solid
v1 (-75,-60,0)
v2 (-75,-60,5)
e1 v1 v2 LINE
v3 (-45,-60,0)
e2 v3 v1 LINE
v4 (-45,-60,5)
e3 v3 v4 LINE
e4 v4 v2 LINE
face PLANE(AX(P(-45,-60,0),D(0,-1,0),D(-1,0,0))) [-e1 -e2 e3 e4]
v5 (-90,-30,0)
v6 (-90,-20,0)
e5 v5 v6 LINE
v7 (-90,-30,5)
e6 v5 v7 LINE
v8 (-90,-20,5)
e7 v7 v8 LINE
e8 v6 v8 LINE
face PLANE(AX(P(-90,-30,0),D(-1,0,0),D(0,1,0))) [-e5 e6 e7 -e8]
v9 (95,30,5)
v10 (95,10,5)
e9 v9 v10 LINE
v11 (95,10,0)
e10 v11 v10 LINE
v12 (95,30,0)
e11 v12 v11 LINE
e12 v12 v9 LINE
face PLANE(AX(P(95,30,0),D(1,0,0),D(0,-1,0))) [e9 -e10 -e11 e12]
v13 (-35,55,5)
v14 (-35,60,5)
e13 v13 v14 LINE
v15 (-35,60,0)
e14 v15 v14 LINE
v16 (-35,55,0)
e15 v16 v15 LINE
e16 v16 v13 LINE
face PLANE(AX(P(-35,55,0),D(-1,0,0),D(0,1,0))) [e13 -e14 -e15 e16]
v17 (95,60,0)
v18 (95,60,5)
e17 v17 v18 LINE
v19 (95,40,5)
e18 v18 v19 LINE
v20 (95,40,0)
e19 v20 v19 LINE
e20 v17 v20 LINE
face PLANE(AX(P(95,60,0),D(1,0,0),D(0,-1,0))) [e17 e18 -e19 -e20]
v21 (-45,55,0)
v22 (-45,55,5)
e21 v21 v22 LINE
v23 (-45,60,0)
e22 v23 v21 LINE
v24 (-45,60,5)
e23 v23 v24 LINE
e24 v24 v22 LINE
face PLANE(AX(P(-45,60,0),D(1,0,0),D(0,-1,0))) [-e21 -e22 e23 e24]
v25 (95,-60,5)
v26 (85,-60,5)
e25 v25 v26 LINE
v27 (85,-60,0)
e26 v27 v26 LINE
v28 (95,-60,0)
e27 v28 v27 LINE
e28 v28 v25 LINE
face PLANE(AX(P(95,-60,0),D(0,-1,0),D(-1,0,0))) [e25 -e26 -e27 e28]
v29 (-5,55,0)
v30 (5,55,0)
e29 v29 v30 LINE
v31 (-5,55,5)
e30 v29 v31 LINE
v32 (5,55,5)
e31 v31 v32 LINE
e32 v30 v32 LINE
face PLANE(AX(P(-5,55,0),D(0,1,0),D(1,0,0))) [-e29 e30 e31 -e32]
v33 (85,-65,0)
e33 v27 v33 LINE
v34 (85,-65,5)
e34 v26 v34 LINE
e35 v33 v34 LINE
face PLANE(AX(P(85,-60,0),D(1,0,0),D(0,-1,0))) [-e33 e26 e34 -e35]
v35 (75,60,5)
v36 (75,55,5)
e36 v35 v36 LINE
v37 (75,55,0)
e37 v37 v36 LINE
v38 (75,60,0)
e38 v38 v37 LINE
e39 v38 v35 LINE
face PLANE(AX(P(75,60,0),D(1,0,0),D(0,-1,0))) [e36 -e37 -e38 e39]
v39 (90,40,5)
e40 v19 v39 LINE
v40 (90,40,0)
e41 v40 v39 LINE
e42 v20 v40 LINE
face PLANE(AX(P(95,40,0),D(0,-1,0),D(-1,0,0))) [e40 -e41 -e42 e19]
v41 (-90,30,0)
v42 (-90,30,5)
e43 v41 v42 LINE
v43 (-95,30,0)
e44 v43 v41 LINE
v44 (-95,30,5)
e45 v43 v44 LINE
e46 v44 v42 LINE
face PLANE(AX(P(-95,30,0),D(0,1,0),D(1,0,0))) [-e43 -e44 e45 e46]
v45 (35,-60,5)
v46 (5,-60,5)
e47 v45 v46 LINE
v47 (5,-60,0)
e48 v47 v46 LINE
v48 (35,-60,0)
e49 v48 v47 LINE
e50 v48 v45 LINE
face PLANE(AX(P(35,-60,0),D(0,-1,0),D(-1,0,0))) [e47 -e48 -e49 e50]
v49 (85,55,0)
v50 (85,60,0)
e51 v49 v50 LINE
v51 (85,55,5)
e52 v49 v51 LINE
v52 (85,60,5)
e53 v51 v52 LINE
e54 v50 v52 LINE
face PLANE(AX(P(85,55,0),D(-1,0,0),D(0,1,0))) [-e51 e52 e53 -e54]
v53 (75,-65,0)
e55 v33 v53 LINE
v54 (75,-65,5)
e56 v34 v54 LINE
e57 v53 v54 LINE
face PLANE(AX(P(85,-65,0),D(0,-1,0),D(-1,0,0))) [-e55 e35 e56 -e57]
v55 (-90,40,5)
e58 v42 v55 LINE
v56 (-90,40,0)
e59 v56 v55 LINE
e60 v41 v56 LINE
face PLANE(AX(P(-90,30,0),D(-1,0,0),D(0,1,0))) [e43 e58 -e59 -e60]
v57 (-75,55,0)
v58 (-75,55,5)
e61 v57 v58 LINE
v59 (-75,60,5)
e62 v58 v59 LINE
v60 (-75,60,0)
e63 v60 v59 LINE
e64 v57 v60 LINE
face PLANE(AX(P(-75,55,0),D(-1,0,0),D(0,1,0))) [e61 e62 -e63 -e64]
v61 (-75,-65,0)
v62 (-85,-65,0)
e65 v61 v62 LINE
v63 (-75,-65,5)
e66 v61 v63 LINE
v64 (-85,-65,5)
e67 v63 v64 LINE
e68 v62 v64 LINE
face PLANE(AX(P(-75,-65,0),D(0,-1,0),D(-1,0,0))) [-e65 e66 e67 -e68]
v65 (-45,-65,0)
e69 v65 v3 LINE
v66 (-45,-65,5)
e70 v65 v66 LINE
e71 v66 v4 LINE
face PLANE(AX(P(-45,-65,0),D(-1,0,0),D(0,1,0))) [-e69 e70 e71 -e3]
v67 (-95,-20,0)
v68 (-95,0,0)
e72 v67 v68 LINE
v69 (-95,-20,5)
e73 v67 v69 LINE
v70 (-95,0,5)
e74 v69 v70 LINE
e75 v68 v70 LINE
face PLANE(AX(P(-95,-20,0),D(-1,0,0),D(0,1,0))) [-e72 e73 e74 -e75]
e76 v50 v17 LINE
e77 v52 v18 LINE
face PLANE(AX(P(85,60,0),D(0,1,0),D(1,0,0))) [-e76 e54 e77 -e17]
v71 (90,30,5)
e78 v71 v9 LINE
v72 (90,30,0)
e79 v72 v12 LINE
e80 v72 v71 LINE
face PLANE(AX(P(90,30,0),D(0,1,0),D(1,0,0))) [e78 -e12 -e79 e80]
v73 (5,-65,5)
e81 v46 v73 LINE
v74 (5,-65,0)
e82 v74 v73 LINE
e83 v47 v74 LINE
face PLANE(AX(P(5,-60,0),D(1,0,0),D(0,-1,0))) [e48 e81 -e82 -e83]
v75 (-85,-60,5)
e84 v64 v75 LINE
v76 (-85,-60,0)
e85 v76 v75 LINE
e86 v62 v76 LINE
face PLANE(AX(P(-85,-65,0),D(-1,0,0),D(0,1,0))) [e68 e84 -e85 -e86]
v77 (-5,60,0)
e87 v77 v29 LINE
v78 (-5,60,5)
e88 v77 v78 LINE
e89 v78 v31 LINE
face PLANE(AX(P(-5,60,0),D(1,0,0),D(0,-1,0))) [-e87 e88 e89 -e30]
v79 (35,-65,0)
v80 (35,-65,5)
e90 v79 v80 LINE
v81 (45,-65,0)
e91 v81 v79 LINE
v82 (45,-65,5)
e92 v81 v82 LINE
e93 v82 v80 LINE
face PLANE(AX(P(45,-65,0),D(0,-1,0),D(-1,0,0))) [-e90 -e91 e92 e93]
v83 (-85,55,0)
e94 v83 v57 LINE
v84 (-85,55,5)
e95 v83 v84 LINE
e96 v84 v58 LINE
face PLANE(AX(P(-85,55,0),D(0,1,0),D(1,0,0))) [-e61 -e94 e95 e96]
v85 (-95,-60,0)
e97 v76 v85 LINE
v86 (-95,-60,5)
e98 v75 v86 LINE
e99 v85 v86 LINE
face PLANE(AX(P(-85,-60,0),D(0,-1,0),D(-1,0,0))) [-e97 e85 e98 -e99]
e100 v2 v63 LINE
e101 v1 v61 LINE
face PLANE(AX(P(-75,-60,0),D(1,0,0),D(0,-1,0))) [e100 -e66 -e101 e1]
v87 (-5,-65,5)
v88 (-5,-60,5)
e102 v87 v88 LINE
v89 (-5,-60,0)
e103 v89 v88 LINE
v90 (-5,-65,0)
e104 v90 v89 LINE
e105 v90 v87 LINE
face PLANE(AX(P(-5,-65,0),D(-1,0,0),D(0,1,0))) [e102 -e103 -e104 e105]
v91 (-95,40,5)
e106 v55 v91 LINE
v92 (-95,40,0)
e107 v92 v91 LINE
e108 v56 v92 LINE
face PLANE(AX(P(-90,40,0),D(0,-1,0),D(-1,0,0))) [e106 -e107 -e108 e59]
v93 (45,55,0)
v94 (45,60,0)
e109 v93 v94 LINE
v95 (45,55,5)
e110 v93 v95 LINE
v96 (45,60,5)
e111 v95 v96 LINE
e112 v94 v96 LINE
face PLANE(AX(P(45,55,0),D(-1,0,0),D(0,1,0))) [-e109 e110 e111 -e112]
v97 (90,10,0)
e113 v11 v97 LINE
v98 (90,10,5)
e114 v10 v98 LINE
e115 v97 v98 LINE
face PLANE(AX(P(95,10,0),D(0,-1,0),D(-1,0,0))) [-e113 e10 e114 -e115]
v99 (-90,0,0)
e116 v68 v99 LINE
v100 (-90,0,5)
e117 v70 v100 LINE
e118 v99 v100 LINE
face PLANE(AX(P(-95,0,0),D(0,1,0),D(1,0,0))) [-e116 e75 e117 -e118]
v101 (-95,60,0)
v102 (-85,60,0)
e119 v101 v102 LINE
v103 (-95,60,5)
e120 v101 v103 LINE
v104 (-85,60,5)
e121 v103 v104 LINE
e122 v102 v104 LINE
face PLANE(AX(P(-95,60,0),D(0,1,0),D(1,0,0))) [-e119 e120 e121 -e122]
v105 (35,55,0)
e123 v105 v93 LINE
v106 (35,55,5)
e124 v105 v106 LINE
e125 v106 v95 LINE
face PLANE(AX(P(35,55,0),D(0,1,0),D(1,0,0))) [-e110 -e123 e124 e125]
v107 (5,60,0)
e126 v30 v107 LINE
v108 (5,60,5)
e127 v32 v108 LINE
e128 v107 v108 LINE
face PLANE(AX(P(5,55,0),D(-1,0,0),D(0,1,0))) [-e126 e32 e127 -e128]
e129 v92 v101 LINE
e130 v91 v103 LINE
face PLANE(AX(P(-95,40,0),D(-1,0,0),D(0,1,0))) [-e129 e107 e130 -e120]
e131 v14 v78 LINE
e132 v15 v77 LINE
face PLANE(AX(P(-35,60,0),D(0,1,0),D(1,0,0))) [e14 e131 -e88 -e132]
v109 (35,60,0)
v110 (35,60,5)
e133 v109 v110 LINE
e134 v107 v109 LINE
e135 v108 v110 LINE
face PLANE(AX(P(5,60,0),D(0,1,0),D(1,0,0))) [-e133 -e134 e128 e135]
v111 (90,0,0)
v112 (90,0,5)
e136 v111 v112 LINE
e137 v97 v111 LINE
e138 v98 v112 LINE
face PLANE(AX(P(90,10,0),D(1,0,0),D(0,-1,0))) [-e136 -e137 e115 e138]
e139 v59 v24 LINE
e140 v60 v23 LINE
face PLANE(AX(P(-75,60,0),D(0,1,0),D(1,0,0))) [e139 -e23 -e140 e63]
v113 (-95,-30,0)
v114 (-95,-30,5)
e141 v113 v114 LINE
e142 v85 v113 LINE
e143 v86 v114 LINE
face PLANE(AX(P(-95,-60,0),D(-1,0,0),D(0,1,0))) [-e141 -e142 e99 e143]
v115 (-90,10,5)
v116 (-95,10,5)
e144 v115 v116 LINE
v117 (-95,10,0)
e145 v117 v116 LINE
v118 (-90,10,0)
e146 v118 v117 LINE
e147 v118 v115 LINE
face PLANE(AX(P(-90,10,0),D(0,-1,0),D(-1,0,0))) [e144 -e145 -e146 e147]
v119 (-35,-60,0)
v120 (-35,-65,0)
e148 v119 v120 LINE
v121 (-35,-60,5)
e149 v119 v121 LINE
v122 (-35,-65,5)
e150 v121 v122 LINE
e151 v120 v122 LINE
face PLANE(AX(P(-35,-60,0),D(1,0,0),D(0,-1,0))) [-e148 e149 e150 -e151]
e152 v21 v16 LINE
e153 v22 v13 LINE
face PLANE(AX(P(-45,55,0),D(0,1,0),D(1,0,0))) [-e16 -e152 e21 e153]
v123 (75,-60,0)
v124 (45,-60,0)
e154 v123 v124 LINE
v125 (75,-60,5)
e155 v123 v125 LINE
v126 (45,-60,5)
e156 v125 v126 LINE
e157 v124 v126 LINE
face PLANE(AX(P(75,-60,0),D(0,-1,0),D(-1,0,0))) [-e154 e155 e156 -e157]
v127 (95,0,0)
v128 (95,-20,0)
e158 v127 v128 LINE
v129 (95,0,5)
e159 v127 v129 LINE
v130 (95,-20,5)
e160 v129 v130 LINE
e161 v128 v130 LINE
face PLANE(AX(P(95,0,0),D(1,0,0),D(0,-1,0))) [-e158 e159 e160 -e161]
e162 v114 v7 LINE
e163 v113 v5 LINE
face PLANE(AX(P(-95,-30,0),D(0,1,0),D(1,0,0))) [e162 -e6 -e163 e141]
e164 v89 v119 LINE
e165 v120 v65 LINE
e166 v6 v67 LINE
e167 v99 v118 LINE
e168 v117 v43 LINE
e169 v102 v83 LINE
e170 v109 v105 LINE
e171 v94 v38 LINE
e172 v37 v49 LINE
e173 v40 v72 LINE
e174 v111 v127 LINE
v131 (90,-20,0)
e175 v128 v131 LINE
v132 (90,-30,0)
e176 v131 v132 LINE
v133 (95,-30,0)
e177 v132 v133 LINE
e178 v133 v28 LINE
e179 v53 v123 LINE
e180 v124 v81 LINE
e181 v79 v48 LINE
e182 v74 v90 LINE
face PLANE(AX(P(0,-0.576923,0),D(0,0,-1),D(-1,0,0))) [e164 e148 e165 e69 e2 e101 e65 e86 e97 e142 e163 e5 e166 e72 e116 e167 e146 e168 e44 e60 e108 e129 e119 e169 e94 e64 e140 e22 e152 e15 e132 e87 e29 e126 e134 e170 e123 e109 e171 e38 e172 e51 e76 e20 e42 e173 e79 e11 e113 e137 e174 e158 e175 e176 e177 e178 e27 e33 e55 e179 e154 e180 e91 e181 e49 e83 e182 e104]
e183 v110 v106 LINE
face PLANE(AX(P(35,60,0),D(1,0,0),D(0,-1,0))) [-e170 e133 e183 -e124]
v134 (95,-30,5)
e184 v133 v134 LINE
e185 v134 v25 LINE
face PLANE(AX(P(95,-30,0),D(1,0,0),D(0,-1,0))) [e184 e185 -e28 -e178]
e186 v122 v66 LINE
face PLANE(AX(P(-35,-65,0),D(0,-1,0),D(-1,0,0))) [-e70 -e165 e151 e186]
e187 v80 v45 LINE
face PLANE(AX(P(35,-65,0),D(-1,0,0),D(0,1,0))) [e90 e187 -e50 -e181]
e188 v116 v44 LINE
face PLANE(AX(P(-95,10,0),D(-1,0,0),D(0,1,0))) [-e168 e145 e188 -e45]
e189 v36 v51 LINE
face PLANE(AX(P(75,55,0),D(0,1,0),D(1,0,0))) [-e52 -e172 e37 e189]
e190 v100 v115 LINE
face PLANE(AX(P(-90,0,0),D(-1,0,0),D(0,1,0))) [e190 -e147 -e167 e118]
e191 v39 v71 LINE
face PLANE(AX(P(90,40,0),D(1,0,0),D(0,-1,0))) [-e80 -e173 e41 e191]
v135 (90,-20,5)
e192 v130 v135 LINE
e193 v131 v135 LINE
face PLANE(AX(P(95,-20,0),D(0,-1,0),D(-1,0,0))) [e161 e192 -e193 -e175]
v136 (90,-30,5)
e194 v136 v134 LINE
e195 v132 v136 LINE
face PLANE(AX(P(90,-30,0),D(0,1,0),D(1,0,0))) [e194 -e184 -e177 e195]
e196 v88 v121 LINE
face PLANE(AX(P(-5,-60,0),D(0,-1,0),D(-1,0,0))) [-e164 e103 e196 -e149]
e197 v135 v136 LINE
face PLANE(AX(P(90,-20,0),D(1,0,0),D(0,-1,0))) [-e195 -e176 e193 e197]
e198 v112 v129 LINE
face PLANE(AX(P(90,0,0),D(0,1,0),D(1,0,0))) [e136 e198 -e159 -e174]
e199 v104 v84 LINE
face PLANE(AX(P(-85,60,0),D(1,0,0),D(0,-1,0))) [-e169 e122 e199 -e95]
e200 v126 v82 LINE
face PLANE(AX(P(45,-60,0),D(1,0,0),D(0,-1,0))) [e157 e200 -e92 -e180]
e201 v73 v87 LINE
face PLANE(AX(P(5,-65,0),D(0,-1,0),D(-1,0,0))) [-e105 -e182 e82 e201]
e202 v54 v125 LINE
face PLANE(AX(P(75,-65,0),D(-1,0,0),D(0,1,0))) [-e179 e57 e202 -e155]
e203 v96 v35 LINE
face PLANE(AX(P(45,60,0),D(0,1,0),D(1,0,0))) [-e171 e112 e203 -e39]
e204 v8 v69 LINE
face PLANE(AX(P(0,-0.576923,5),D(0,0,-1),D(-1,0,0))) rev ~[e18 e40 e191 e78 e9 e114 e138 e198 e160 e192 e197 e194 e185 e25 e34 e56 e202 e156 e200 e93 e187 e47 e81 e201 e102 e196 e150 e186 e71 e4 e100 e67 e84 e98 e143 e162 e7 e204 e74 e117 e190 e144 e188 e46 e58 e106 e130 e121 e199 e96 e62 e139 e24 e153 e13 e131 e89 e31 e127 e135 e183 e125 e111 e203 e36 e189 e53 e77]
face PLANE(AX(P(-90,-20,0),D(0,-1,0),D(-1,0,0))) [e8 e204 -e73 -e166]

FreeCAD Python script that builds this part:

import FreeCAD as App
import Part
import Sketcher

V = App.Vector
Q = App.Units.Quantity


def add_polygon(sketch, points):
    """Adds a closed chain of lines whose ends are joined by coincident constraints."""
    first, n = sketch.GeometryCount, len(points)
    for a, b in zip(points, points[1:] + points[:1]):
        sketch.addGeometry(Part.LineSegment(App.Vector(*a, 0), App.Vector(*b, 0)), False)
    for i in range(n):
        sketch.addConstraint(Sketcher.Constraint("Coincident", first + i, 2, first + (i + 1) % n, 1))

doc = App.newDocument("Part")
body = doc.addObject("PartDesign::Body", "Body")

sketch1 = body.newObject("Sketcher::SketchObject", "Sketch")
sketch1.AttachmentSupport = (doc.getObject("XY_Plane"), [""])
sketch1.MapMode = "FlatFace"
add_polygon(sketch1, [(-85, 55), (-85, 60), (-95, 60), (-95, 40), (-90, 40), (-90, 30), (-95, 30), (-95, 10), (-90, 10), (-90, 0), (-95, 0), (-95, -20), (-90, -20), (-90, -30), (-95, -30), (-95, -60), (-85, -60), (-85, -65), (-75, -65), (-75, -60), (-45, -60), (-45, -65), (-35, -65), (-35, -60), (-5, -60), (-5, -65), (5, -65), (5, -60), (35, -60), (35, -65), (45, -65), (45, -60), (75, -60), (75, -65), (85, -65), (85, -60), (95, -60), (95, -30), (90, -30), (90, -20), (95, -20), (95, 0), (90, 0), (90, 10), (95, 10), (95, 30), (90, 30), (90, 40), (95, 40), (95, 60), (85, 60), (85, 55), (75, 55), (75, 60), (45, 60), (45, 55), (35, 55), (35, 60), (5, 60), (5, 55), (-5, 55), (-5, 60), (-35, 60), (-35, 55), (-45, 55), (-45, 60), (-75, 60), (-75, 55)])
sketch1.addConstraint([
    Sketcher.Constraint("Vertical", 0),
    Sketcher.Constraint("Horizontal", 1),
    Sketcher.Constraint("Vertical", 2),
    Sketcher.Constraint("Horizontal", 3),
    Sketcher.Constraint("Vertical", 4),
    Sketcher.Constraint("Horizontal", 5),
    Sketcher.Constraint("Vertical", 6),
    Sketcher.Constraint("Horizontal", 7),
    Sketcher.Constraint("Vertical", 8),
    Sketcher.Constraint("Horizontal", 9),
    Sketcher.Constraint("Vertical", 10),
    Sketcher.Constraint("Horizontal", 11),
    Sketcher.Constraint("Vertical", 12),
    Sketcher.Constraint("Horizontal", 13),
    Sketcher.Constraint("Vertical", 14),
    Sketcher.Constraint("Horizontal", 15),
    Sketcher.Constraint("Vertical", 16),
    Sketcher.Constraint("Horizontal", 17),
    Sketcher.Constraint("Vertical", 18),
    Sketcher.Constraint("Horizontal", 19),
    Sketcher.Constraint("Vertical", 20),
    Sketcher.Constraint("Horizontal", 21),
    Sketcher.Constraint("Vertical", 22),
    Sketcher.Constraint("Horizontal", 23),
    Sketcher.Constraint("Vertical", 24),
    Sketcher.Constraint("Horizontal", 25),
    Sketcher.Constraint("Vertical", 26),
    Sketcher.Constraint("Horizontal", 27),
    Sketcher.Constraint("Vertical", 28),
    Sketcher.Constraint("Horizontal", 29),
    Sketcher.Constraint("Vertical", 30),
    Sketcher.Constraint("Horizontal", 31),
    Sketcher.Constraint("Vertical", 32),
    Sketcher.Constraint("Horizontal", 33),
    Sketcher.Constraint("Vertical", 34),
    Sketcher.Constraint("Horizontal", 35),
    Sketcher.Constraint("Vertical", 36),
    Sketcher.Constraint("Horizontal", 37),
    Sketcher.Constraint("Vertical", 38),
    Sketcher.Constraint("Horizontal", 39),
    Sketcher.Constraint("Vertical", 40),
    Sketcher.Constraint("Horizontal", 41),
    Sketcher.Constraint("Vertical", 42),
    Sketcher.Constraint("Horizontal", 43),
    Sketcher.Constraint("Vertical", 44),
    Sketcher.Constraint("Horizontal", 45),
    Sketcher.Constraint("Vertical", 46),
    Sketcher.Constraint("Horizontal", 47),
    Sketcher.Constraint("Vertical", 48),
    Sketcher.Constraint("Horizontal", 49),
    Sketcher.Constraint("Vertical", 50),
    Sketcher.Constraint("Horizontal", 51),
    Sketcher.Constraint("Vertical", 52),
    Sketcher.Constraint("Horizontal", 53),
    Sketcher.Constraint("Vertical", 54),
    Sketcher.Constraint("Horizontal", 55),
    Sketcher.Constraint("Vertical", 56),
    Sketcher.Constraint("Horizontal", 57),
    Sketcher.Constraint("Vertical", 58),
    Sketcher.Constraint("Horizontal", 59),
    Sketcher.Constraint("Vertical", 60),
    Sketcher.Constraint("Horizontal", 61),
    Sketcher.Constraint("Vertical", 62),
    Sketcher.Constraint("Horizontal", 63),
    Sketcher.Constraint("Vertical", 64),
    Sketcher.Constraint("Horizontal", 65),
    Sketcher.Constraint("Vertical", 66),
    Sketcher.Constraint("Horizontal", 67),
    Sketcher.Constraint("Symmetric", 0, 2, 34, 2, -1, 1),
    Sketcher.Constraint("Symmetric", 5, 2, 36, 2, -1, 1),
    Sketcher.Constraint("Symmetric", 9, 2, 40, 2, -1, 1),
    Sketcher.Constraint("Symmetric", 13, 2, 44, 2, -1, 1),
    Sketcher.Constraint("Symmetric", 14, 2, 48, 2, -1, 1),
    Sketcher.Constraint("Symmetric", 18, 2, 52, 2, -1, 1),
    Sketcher.Constraint("Symmetric", 22, 2, 56, 2, -1, 1),
    Sketcher.Constraint("Symmetric", 26, 2, 60, 2, -1, 1),
    Sketcher.Constraint("Symmetric", 30, 2, 64, 2, -1, 1),
    Sketcher.Constraint("Symmetric", 23, 2, 26, 2, -2),
    Sketcher.Constraint("Symmetric", 21, 2, 28, 2, -2),
    Sketcher.Constraint("Symmetric", 19, 2, 30, 2, -2),
    Sketcher.Constraint("Symmetric", 17, 2, 32, 2, -2),
    Sketcher.Constraint("Symmetric", 15, 2, 34, 2, -2),
    Sketcher.Constraint("Symmetric", 13, 2, 36, 2, -2),
    Sketcher.Constraint("Symmetric", 11, 2, 38, 2, -2),
    Sketcher.Constraint("Symmetric", 8, 2, 41, 2, -2),
    Sketcher.Constraint("Symmetric", 3, 2, 46, 2, -2),
    Sketcher.Constraint("Symmetric", 55, 2, 62, 2, -2),
    Sketcher.Constraint("Symmetric", 51, 2, 66, 2, -2),
    Sketcher.Constraint("Horizontal", 15, 2, 18, 2),
    Sketcher.Constraint("Horizontal", 17, 2, 20, 2),
    Sketcher.Constraint("Horizontal", 19, 2, 22, 2),
    Sketcher.Constraint("Horizontal", 21, 2, 24, 2),
    Sketcher.Constraint("Horizontal", 7, 2, 42, 2),
    Sketcher.Constraint("Horizontal", 51, 2, 54, 2),
    Sketcher.Constraint("Horizontal", 55, 2, 58, 2),
    Sketcher.Constraint("Vertical", 2, 2, 5, 2),
    Sketcher.Constraint("Vertical", 4, 2, 7, 2),
    Sketcher.Constraint("Vertical", 6, 2, 9, 2),
    Sketcher.Constraint("Vertical", 8, 2, 11, 2),
    Sketcher.Constraint("Vertical", 34, 2, 49, 2),
    Sketcher.Constraint("Vertical", 30, 2, 53, 2),
    Sketcher.Constraint("Vertical", 26, 2, 57, 2),
    Sketcher.Constraint("Equal", 15, 17),
    Sketcher.Constraint("Equal", 17, 21),
    Sketcher.Constraint("Equal", 19, 23),
    Sketcher.Constraint("Equal", 21, 25),
    Sketcher.Constraint("Equal", 47, 0),
    Sketcher.Constraint("Equal", 67, 4),
    Sketcher.Constraint("Equal", 2, 6),
    Sketcher.Constraint("Equal", 4, 8),
    Sketcher.Constraint("Equal", 6, 10),
    Sketcher.Constraint("Equal", 65, 14),
    Sketcher.Constraint("Equal", 0, 16),
    Sketcher.Constraint("DistanceX", 1, 2, 1, 1, Q("10 mm")),
    Sketcher.Constraint("DistanceX", 3, 1, 3, 2, Q("5 mm")),
    Sketcher.Constraint("DistanceX", 19, 1, 19, 2, Q("30 mm")),
])
pad1 = body.newObject("PartDesign::Pad", "Pad")
pad1.Profile = sketch1
pad1.Length = 5

doc.recompute()
